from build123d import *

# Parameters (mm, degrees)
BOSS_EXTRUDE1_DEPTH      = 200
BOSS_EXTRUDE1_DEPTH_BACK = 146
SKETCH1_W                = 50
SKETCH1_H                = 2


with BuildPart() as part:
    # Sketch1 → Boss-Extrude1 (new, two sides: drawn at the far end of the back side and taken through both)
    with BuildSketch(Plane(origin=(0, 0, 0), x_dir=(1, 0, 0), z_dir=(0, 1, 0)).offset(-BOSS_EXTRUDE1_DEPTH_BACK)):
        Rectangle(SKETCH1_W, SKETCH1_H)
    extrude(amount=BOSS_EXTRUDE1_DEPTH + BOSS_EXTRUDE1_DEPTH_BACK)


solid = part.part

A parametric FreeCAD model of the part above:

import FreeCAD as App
import Part
import Sketcher
from FreeCAD import Vector


def add_polygon(sketch, points):
    """Adds a closed chain of lines whose ends are joined by coincident constraints."""
    first, n = sketch.GeometryCount, len(points)
    for a, b in zip(points, points[1:] + points[:1]):
        sketch.addGeometry(Part.LineSegment(App.Vector(*a, 0), App.Vector(*b, 0)), False)
    for i in range(n):
        sketch.addConstraint(Sketcher.Constraint("Coincident", first + i, 2, first + (i + 1) % n, 1))

doc = App.newDocument("Part")
body = doc.addObject("PartDesign::Body", "Body")

# Sketch on XZ plane
sketch1 = body.newObject("Sketcher::SketchObject", "Sketch")
sketch1.AttachmentSupport = (doc.getObject("XZ_Plane"), [""])
sketch1.MapMode = "FlatFace"
add_polygon(sketch1, [(-25, -1), (-25, 1), (25, 1), (25, -1)])  # lines 0-3
sketch1.addConstraint(Sketcher.Constraint("Vertical", 0))
sketch1.addConstraint(Sketcher.Constraint("Horizontal", 1))
sketch1.addConstraint(Sketcher.Constraint("Vertical", 2))
sketch1.addConstraint(Sketcher.Constraint("Horizontal", 3))
sketch1.addConstraint(Sketcher.Constraint("Symmetric", 0, 2, 2, 2, -1, 1))
sketch1.addConstraint(Sketcher.Constraint("DistanceX", 1, 1, 1, 2, 50.0))
sketch1.addConstraint(Sketcher.Constraint("DistanceY", 0, 1, 0, 2, 2.0))
pad1 = body.newObject("PartDesign::Pad", "Pad")
pad1.Profile = sketch1
pad1.Type = "TwoLengths"
pad1.Length = 200
pad1.Length2 = 146
pad1.Reversed = True

doc.recompute()
